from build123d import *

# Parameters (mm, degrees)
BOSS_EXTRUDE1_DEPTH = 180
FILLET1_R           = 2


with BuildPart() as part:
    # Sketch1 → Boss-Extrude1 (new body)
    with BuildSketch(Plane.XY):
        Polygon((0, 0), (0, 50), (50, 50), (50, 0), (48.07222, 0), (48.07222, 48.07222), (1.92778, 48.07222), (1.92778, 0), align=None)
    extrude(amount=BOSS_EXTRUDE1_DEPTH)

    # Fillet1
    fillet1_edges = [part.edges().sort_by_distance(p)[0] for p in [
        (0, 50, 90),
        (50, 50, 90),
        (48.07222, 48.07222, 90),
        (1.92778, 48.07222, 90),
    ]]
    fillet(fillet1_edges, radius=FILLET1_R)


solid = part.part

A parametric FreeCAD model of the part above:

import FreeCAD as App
import Part
import Sketcher

V = App.Vector
Q = App.Units.Quantity


def edges_at(feature, points):
    """Names of the edges that pass closest to the given points."""
    edges = feature.Shape.Edges
    near = lambda p: min(range(len(edges)), key=lambda i: edges[i].distToShape(Part.Vertex(*p))[0])
    return sorted({f"Edge{near(p) + 1}" for p in points})

doc = App.newDocument("Part")
body = doc.addObject("PartDesign::Body", "Body")

# Sketch on XY plane
sketch1 = body.newObject("Sketcher::SketchObject", "Sketch")
sketch1.AttachmentSupport = (doc.getObject("XY_Plane"), [""])
sketch1.MapMode = "FlatFace"
sketch1.addGeometry([
    Part.LineSegment(V(0, 50, 0), V(0, 0, 0)),  # 0
    Part.LineSegment(V(0, 0, 0), V(1.9, 0, 0)),  # 1
    Part.LineSegment(V(1.9, 0, 0), V(1.9, 48.1, 0)),  # 2
    Part.LineSegment(V(1.9, 48.1, 0), V(48.1, 48.1, 0)),  # 3
    Part.LineSegment(V(48.1, 48.1, 0), V(48.1, 0, 0)),  # 4
    Part.LineSegment(V(48.1, 0, 0), V(50, 0, 0)),  # 5
    Part.LineSegment(V(50, 0, 0), V(50, 50, 0)),  # 6
    Part.LineSegment(V(50, 50, 0), V(0, 50, 0)),  # 7
], False)
sketch1.addConstraint([
    Sketcher.Constraint("Coincident", 0, 2, 1, 1),
    Sketcher.Constraint("Coincident", 1, 2, 2, 1),
    Sketcher.Constraint("Coincident", 2, 2, 3, 1),
    Sketcher.Constraint("Coincident", 3, 2, 4, 1),
    Sketcher.Constraint("Coincident", 4, 2, 5, 1),
    Sketcher.Constraint("Coincident", 5, 2, 6, 1),
    Sketcher.Constraint("Coincident", 6, 2, 7, 1),
    Sketcher.Constraint("Coincident", 7, 2, 0, 1),
    Sketcher.Constraint("Vertical", 0),
    Sketcher.Constraint("Horizontal", 1),
    Sketcher.Constraint("Vertical", 2),
    Sketcher.Constraint("Horizontal", 3),
    Sketcher.Constraint("Vertical", 4),
    Sketcher.Constraint("Horizontal", 5),
    Sketcher.Constraint("Vertical", 6),
    Sketcher.Constraint("Horizontal", 7),
    Sketcher.Constraint("Coincident", 0, 2, -1, 1),
    Sketcher.Constraint("PointOnObject", 4, 2, -1),
    Sketcher.Constraint("Equal", 1, 5),
    Sketcher.Constraint("Equal", 7, 0),
    Sketcher.Constraint("DistanceX", 7, 2, 7, 1, Q("50 mm")),
    Sketcher.Constraint("DistanceX", 1, 1, 1, 2, Q("1.92778 mm")),
    Sketcher.Constraint("DistanceY", 2, 1, 2, 2, Q("48.07222 mm")),
])
pad1 = body.newObject("PartDesign::Pad", "Pad")
pad1.Profile = sketch1
pad1.Length = 180
doc.recompute()

fillet = body.newObject("PartDesign::Fillet", "Fillet")
fillet.Base = (pad1, edges_at(pad1, [
    (0, 50, 90),
    (50, 50, 90),
    (48.072, 48.072, 90),
    (1.928, 48.072, 90),
]))
fillet.Radius = 2

doc.recompute()
